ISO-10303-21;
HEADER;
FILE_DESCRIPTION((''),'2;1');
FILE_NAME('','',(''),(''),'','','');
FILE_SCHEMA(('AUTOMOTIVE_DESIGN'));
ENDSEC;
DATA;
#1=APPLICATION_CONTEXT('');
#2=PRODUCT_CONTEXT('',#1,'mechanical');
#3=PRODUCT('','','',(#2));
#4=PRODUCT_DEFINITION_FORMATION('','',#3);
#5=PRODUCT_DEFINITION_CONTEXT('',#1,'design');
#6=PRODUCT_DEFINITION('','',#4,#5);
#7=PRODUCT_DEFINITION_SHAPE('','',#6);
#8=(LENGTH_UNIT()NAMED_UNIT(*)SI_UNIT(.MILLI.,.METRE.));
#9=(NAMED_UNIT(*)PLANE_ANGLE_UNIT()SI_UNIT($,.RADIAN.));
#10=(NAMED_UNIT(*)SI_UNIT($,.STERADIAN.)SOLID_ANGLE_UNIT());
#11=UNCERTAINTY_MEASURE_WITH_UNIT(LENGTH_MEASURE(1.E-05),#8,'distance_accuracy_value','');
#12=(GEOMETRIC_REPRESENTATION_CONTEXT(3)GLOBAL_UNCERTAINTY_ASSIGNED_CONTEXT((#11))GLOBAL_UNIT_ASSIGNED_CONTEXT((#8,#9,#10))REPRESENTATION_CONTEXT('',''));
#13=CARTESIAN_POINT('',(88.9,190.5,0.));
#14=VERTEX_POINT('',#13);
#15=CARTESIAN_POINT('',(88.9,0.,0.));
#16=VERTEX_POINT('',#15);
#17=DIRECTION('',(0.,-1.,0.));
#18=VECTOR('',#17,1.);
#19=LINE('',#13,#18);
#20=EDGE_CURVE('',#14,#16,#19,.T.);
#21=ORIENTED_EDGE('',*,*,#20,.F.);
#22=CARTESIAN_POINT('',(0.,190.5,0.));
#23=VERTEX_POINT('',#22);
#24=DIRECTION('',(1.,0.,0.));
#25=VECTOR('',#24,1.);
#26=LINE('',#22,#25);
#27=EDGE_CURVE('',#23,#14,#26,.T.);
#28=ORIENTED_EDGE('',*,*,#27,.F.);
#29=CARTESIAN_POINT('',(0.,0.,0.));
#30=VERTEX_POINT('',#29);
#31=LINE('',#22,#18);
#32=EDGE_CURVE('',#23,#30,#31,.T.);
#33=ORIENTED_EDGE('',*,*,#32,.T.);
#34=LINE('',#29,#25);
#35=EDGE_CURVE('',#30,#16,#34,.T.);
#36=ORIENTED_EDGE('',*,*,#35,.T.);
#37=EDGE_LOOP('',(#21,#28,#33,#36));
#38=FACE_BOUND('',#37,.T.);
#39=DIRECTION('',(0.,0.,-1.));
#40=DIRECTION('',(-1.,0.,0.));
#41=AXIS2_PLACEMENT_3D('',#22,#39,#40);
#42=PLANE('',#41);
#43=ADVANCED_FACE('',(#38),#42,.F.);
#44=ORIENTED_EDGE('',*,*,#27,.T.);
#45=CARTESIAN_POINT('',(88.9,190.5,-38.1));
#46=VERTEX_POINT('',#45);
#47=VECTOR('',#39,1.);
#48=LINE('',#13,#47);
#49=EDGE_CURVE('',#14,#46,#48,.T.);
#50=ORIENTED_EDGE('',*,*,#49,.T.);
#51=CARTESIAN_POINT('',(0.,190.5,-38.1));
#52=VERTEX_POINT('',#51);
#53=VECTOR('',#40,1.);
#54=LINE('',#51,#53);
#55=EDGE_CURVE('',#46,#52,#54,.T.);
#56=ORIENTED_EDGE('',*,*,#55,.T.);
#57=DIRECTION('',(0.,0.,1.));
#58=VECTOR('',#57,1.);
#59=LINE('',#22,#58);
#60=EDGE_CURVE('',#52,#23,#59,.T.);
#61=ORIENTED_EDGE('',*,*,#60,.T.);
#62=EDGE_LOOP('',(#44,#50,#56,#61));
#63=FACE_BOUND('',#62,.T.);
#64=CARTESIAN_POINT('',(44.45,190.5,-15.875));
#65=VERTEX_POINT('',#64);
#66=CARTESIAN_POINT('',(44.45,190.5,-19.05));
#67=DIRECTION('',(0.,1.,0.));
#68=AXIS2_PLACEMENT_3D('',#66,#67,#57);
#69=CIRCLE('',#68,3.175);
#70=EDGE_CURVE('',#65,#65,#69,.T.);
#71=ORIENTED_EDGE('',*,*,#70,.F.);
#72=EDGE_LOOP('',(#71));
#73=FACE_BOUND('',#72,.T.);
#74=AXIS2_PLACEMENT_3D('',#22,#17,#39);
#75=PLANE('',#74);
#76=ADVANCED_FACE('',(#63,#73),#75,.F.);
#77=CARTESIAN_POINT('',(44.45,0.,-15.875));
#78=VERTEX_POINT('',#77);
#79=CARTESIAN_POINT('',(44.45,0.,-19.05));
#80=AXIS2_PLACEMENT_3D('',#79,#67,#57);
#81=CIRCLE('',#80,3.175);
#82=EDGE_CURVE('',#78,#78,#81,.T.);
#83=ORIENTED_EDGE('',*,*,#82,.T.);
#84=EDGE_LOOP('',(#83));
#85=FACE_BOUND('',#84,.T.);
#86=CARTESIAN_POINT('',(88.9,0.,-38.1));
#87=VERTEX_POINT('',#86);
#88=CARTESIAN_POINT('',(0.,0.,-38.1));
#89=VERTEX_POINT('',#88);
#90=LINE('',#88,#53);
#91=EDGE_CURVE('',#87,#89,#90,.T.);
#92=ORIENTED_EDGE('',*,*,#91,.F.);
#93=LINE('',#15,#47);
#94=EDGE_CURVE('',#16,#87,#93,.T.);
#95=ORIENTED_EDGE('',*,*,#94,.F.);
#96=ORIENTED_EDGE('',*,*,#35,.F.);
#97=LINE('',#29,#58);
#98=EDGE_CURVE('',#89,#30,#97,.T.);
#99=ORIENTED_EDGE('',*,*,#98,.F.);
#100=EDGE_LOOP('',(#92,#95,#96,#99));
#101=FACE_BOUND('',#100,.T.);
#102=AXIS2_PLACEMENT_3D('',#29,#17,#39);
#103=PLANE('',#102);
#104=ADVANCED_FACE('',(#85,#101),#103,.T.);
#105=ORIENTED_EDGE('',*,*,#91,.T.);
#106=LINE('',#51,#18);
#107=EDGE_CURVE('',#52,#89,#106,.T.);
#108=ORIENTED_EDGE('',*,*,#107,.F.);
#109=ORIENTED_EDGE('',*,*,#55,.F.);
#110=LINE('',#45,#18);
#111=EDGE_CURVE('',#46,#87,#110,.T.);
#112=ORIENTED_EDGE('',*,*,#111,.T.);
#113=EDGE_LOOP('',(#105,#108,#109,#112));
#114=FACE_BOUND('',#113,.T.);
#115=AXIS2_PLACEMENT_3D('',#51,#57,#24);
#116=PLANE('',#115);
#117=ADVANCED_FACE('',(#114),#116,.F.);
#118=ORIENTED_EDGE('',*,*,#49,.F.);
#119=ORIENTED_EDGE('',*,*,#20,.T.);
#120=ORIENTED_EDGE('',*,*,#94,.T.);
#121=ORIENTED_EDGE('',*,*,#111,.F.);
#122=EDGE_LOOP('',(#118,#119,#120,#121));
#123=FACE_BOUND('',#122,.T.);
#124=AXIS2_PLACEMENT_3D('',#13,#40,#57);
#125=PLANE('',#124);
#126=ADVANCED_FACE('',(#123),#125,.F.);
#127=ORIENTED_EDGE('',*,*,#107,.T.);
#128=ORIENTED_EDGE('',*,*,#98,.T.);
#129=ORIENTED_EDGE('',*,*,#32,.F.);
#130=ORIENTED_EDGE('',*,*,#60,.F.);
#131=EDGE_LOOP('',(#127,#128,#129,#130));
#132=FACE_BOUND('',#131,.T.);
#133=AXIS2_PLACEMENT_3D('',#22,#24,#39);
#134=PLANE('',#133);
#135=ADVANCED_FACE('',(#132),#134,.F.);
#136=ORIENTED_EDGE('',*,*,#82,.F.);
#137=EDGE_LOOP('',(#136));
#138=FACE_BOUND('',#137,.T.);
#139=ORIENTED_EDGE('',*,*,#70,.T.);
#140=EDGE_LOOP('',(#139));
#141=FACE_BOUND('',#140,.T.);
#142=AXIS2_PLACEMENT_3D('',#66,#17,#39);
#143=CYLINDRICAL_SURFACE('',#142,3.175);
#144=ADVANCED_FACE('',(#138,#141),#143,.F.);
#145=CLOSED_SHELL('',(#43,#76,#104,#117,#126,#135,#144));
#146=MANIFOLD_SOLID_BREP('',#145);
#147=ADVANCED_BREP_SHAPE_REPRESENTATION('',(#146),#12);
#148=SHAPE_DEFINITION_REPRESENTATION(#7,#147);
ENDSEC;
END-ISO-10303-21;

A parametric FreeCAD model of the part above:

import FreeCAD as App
import Part
import Sketcher
from FreeCAD import Vector
Q = App.Units.Quantity


def add_polygon(sketch, points):
    """Adds a closed chain of lines whose ends are joined by coincident constraints."""
    first, n = sketch.GeometryCount, len(points)
    for a, b in zip(points, points[1:] + points[:1]):
        sketch.addGeometry(Part.LineSegment(App.Vector(*a, 0), App.Vector(*b, 0)), False)
    for i in range(n):
        sketch.addConstraint(Sketcher.Constraint("Coincident", first + i, 2, first + (i + 1) % n, 1))

doc = App.newDocument("Part")
body = doc.addObject("PartDesign::Body", "Body")

# Sketch on XZ plane
sketch1 = body.newObject("Sketcher::SketchObject", "Sketch")
sketch1.AttachmentSupport = (doc.getObject("XZ_Plane"), [""])
sketch1.MapMode = "FlatFace"
add_polygon(sketch1, [(0, -38.1), (0, 0), (88.9, 0), (88.9, -38.1)])  # lines 0-3
sketch1.addGeometry(Part.Circle(Vector(44.5, -19.1, 0), Vector(0, 0, 1), 3.2), False)  # 4
sketch1.addConstraint(Sketcher.Constraint("Vertical", 0))
sketch1.addConstraint(Sketcher.Constraint("Horizontal", 1))
sketch1.addConstraint(Sketcher.Constraint("Vertical", 2))
sketch1.addConstraint(Sketcher.Constraint("Horizontal", 3))
sketch1.addConstraint(Sketcher.Constraint("Coincident", 0, 2, -1, 1))
sketch1.addConstraint(Sketcher.Constraint("Diameter", 4, Q("0.25 in")))
sketch1.addConstraint(Sketcher.Constraint("DistanceX", 1, 1, 1, 2, Q("3.5 in")))
sketch1.addConstraint(Sketcher.Constraint("DistanceY", 0, 1, 0, 2, Q("1.5 in")))
sketch1.addConstraint(Sketcher.Constraint("DistanceX", -1, 1, 4, 3, Q("1.75 in")))
sketch1.addConstraint(Sketcher.Constraint("DistanceY", 4, 3, -1, 1, Q("0.75 in")))
pad1 = body.newObject("PartDesign::Pad", "Pad")
pad1.Profile = sketch1
pad1.Length = Q("7.5 in")
pad1.Reversed = True

doc.recompute()
